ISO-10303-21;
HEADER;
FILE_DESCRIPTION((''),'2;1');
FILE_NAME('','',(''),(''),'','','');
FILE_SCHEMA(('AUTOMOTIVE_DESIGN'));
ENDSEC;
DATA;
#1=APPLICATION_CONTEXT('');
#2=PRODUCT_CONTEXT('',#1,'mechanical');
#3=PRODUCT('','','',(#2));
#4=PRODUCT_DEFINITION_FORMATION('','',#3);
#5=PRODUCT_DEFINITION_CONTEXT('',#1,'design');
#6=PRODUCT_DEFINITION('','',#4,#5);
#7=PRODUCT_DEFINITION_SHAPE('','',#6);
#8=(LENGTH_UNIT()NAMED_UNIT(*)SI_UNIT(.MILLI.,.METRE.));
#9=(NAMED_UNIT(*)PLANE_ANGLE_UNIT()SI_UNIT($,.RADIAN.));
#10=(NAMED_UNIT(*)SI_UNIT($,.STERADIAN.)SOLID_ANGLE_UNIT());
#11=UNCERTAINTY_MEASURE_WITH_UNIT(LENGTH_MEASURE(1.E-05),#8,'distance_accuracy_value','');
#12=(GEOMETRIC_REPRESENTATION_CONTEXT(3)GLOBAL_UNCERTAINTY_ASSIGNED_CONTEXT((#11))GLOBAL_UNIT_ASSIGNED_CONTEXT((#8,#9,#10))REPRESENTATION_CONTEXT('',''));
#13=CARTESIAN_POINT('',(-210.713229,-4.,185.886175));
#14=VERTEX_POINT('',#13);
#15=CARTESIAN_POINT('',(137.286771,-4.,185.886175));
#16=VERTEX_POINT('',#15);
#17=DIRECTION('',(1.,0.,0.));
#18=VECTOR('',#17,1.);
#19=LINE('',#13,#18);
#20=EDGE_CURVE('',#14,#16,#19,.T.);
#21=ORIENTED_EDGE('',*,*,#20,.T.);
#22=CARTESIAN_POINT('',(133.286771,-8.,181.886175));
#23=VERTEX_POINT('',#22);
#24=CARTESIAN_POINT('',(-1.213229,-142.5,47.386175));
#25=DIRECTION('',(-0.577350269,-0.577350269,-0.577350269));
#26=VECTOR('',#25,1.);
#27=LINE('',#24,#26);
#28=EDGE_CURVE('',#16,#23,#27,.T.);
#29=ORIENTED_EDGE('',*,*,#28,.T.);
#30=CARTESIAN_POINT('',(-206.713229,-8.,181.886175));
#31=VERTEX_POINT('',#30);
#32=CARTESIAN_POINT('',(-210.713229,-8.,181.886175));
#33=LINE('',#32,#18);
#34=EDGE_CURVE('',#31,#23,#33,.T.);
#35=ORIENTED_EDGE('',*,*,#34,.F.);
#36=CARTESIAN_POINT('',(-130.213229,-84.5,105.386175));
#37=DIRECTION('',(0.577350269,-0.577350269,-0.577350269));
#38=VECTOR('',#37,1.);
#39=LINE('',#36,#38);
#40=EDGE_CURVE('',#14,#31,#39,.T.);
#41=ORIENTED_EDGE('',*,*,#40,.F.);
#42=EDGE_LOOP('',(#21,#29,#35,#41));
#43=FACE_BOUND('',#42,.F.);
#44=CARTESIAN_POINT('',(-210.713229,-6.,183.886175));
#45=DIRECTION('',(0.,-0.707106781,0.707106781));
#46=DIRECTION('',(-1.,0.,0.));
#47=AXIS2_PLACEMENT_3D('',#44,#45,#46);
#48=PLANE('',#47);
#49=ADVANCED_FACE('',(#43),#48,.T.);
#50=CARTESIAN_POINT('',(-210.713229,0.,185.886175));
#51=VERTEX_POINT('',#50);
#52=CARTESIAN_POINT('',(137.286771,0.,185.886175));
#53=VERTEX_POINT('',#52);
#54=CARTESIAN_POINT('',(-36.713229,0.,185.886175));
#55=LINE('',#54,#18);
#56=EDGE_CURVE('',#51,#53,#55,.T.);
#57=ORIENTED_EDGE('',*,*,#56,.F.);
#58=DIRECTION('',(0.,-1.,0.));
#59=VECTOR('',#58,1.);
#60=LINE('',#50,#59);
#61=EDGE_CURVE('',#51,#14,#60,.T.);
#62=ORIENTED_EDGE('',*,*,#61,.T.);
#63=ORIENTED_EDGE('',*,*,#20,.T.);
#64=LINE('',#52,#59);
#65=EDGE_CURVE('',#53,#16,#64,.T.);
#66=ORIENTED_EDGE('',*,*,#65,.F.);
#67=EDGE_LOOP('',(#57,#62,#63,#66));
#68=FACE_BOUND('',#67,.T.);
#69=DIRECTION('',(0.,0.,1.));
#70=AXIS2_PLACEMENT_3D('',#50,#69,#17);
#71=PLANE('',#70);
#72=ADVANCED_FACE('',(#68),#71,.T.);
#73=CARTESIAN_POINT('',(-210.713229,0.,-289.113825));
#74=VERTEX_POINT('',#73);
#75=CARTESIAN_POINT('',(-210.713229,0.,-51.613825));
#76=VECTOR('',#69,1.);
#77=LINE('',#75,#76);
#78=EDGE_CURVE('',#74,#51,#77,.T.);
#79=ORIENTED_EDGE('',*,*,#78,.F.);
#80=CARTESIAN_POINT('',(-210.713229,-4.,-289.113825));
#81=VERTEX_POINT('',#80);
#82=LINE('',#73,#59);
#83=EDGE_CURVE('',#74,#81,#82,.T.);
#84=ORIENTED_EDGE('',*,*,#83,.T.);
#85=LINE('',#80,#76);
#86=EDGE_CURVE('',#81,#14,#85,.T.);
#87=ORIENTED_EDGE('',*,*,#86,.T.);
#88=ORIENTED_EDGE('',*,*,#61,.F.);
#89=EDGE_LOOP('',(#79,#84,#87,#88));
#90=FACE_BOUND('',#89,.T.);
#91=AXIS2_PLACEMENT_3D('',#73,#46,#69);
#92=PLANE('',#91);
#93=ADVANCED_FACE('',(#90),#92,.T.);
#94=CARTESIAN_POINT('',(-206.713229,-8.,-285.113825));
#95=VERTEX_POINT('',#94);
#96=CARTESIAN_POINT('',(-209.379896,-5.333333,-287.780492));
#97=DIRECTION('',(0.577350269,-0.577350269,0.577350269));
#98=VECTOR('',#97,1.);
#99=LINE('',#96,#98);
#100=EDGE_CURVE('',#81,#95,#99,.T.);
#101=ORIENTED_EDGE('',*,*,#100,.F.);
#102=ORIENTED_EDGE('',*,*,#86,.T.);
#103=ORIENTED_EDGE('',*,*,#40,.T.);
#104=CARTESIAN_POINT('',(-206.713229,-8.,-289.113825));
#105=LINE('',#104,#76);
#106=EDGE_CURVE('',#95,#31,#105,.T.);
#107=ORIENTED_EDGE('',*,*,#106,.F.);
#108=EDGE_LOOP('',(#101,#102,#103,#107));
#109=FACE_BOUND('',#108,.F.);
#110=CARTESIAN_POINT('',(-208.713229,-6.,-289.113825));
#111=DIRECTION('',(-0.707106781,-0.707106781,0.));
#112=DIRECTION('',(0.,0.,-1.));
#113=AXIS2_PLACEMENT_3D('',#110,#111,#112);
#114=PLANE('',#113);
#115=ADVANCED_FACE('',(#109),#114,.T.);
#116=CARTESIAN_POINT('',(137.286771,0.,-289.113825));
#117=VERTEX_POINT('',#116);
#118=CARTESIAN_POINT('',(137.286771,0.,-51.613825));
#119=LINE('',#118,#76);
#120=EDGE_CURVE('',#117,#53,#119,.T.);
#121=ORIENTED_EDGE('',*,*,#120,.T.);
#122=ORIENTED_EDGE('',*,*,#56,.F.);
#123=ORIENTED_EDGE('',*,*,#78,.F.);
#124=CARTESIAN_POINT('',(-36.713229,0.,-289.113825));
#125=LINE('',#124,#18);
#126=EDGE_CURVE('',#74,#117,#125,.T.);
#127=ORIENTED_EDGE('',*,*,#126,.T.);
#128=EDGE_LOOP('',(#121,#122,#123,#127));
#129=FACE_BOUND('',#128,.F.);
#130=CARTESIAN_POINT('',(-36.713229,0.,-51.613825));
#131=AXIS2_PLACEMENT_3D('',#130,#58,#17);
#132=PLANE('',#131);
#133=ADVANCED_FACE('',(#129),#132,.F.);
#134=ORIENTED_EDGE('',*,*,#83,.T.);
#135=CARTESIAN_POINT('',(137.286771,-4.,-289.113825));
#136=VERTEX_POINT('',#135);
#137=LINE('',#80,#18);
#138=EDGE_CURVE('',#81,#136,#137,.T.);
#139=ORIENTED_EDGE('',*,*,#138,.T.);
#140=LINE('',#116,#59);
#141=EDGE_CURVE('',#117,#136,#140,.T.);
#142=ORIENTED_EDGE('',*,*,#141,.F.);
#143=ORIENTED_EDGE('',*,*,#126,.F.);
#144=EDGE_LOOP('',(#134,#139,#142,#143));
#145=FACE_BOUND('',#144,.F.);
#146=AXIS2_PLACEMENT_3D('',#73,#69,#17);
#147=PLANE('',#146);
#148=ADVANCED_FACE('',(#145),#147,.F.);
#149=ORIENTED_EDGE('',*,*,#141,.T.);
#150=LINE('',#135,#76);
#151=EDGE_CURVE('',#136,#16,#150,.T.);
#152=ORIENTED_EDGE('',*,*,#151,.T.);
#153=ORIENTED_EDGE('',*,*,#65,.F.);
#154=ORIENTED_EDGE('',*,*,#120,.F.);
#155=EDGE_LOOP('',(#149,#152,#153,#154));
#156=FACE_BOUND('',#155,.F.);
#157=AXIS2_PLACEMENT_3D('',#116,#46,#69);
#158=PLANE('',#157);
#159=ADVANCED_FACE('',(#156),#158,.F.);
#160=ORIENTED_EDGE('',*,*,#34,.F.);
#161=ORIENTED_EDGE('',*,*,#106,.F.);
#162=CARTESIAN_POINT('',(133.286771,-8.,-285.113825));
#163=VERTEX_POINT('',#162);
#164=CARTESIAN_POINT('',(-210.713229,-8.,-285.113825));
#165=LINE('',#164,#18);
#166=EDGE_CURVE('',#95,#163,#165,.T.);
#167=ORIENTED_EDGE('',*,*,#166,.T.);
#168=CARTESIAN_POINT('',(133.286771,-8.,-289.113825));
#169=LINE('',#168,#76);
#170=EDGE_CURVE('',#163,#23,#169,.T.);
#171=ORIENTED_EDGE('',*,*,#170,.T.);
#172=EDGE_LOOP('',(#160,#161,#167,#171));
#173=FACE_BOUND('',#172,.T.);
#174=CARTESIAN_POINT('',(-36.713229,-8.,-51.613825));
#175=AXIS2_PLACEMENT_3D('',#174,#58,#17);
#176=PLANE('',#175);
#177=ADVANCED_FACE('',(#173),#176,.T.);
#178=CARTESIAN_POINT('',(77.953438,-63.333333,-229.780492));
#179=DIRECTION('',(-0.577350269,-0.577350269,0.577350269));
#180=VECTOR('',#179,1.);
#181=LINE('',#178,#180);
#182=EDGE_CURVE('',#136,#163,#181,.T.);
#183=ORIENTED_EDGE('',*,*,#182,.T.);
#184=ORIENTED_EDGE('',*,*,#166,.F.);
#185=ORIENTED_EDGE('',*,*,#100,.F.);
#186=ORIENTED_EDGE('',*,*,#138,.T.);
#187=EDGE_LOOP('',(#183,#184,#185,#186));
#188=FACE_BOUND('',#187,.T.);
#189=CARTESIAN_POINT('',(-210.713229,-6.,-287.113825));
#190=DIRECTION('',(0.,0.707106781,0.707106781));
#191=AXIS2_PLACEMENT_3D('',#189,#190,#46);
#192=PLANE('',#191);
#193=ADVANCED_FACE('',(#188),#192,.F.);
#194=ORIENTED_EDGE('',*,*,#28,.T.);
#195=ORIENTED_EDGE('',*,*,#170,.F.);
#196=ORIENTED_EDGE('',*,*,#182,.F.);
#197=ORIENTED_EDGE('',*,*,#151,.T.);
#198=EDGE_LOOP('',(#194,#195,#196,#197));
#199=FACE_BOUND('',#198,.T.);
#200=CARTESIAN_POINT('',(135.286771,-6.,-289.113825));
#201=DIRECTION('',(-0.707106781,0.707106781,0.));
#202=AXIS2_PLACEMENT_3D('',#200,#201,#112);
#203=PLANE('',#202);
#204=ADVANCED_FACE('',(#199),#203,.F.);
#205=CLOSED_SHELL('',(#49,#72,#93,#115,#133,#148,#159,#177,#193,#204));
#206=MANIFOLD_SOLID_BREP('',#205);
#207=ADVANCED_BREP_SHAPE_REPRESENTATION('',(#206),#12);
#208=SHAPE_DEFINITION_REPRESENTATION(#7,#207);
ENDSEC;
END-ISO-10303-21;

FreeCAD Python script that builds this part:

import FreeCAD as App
import Part
import Sketcher

V = App.Vector
Q = App.Units.Quantity


def edges_at(feature, points):
    """Names of the edges that pass closest to the given points."""
    edges = feature.Shape.Edges
    near = lambda p: min(range(len(edges)), key=lambda i: edges[i].distToShape(Part.Vertex(*p))[0])
    return sorted({f"Edge{near(p) + 1}" for p in points})

doc = App.newDocument("Part")
body = doc.addObject("PartDesign::Body", "Body")

sketch1 = doc.addObject("Sketcher::SketchObject", "Sketch")
body.addObject(sketch1)
sketch1.AttachmentSupport = (doc.XZ_Plane, [""])
sketch1.MapMode = "FlatFace"
sketch1.addGeometry(Part.LineSegment(V(-210.713229, 185.886175, 0), V(-210.713229, -289.113825, 0)), False)
sketch1.addGeometry(Part.LineSegment(V(-210.713229, -289.113825, 0), V(137.286771, -289.113825, 0)), False)
sketch1.addGeometry(Part.LineSegment(V(137.286771, -289.113825, 0), V(137.286771, 185.886175, 0)), False)
sketch1.addGeometry(Part.LineSegment(V(137.286771, 185.886175, 0), V(-210.713229, 185.886175, 0)), False)
sketch1.addConstraint(Sketcher.Constraint("Coincident", 0, 2, 1, 1))
sketch1.addConstraint(Sketcher.Constraint("Coincident", 1, 2, 2, 1))
sketch1.addConstraint(Sketcher.Constraint("Coincident", 2, 2, 3, 1))
sketch1.addConstraint(Sketcher.Constraint("Coincident", 3, 2, 0, 1))
sketch1.addConstraint(Sketcher.Constraint("Vertical", 0))
sketch1.addConstraint(Sketcher.Constraint("Horizontal", 1))
sketch1.addConstraint(Sketcher.Constraint("Vertical", 2))
sketch1.addConstraint(Sketcher.Constraint("Horizontal", 3))
sketch1.addConstraint(Sketcher.Constraint("DistanceX", 1, 1, 1, 2, Q("348 mm")))
sketch1.addConstraint(Sketcher.Constraint("DistanceY", 0, 2, 0, 1, Q("475 mm")))
sketch1.addConstraint(Sketcher.Constraint("DistanceX", 0, 2, -1, 1, Q("210.713229 mm")))
sketch1.addConstraint(Sketcher.Constraint("DistanceY", 0, 2, -1, 1, Q("289.113825 mm")))
pad1 = doc.addObject("PartDesign::Pad", "Pad")
body.addObject(pad1)
pad1.Profile = sketch1
pad1.Length = 8
doc.recompute()

chamfer = doc.addObject("PartDesign::Chamfer", "Chamfer")
body.addObject(chamfer)
chamfer.Base = (pad1, edges_at(pad1, [
    (-36.713, -8, -289.114),
    (137.287, -8, -51.614),
    (-36.713, -8, 185.886),
    (-210.713, -8, -51.614),
]))
chamfer.Size = 4

doc.recompute()
